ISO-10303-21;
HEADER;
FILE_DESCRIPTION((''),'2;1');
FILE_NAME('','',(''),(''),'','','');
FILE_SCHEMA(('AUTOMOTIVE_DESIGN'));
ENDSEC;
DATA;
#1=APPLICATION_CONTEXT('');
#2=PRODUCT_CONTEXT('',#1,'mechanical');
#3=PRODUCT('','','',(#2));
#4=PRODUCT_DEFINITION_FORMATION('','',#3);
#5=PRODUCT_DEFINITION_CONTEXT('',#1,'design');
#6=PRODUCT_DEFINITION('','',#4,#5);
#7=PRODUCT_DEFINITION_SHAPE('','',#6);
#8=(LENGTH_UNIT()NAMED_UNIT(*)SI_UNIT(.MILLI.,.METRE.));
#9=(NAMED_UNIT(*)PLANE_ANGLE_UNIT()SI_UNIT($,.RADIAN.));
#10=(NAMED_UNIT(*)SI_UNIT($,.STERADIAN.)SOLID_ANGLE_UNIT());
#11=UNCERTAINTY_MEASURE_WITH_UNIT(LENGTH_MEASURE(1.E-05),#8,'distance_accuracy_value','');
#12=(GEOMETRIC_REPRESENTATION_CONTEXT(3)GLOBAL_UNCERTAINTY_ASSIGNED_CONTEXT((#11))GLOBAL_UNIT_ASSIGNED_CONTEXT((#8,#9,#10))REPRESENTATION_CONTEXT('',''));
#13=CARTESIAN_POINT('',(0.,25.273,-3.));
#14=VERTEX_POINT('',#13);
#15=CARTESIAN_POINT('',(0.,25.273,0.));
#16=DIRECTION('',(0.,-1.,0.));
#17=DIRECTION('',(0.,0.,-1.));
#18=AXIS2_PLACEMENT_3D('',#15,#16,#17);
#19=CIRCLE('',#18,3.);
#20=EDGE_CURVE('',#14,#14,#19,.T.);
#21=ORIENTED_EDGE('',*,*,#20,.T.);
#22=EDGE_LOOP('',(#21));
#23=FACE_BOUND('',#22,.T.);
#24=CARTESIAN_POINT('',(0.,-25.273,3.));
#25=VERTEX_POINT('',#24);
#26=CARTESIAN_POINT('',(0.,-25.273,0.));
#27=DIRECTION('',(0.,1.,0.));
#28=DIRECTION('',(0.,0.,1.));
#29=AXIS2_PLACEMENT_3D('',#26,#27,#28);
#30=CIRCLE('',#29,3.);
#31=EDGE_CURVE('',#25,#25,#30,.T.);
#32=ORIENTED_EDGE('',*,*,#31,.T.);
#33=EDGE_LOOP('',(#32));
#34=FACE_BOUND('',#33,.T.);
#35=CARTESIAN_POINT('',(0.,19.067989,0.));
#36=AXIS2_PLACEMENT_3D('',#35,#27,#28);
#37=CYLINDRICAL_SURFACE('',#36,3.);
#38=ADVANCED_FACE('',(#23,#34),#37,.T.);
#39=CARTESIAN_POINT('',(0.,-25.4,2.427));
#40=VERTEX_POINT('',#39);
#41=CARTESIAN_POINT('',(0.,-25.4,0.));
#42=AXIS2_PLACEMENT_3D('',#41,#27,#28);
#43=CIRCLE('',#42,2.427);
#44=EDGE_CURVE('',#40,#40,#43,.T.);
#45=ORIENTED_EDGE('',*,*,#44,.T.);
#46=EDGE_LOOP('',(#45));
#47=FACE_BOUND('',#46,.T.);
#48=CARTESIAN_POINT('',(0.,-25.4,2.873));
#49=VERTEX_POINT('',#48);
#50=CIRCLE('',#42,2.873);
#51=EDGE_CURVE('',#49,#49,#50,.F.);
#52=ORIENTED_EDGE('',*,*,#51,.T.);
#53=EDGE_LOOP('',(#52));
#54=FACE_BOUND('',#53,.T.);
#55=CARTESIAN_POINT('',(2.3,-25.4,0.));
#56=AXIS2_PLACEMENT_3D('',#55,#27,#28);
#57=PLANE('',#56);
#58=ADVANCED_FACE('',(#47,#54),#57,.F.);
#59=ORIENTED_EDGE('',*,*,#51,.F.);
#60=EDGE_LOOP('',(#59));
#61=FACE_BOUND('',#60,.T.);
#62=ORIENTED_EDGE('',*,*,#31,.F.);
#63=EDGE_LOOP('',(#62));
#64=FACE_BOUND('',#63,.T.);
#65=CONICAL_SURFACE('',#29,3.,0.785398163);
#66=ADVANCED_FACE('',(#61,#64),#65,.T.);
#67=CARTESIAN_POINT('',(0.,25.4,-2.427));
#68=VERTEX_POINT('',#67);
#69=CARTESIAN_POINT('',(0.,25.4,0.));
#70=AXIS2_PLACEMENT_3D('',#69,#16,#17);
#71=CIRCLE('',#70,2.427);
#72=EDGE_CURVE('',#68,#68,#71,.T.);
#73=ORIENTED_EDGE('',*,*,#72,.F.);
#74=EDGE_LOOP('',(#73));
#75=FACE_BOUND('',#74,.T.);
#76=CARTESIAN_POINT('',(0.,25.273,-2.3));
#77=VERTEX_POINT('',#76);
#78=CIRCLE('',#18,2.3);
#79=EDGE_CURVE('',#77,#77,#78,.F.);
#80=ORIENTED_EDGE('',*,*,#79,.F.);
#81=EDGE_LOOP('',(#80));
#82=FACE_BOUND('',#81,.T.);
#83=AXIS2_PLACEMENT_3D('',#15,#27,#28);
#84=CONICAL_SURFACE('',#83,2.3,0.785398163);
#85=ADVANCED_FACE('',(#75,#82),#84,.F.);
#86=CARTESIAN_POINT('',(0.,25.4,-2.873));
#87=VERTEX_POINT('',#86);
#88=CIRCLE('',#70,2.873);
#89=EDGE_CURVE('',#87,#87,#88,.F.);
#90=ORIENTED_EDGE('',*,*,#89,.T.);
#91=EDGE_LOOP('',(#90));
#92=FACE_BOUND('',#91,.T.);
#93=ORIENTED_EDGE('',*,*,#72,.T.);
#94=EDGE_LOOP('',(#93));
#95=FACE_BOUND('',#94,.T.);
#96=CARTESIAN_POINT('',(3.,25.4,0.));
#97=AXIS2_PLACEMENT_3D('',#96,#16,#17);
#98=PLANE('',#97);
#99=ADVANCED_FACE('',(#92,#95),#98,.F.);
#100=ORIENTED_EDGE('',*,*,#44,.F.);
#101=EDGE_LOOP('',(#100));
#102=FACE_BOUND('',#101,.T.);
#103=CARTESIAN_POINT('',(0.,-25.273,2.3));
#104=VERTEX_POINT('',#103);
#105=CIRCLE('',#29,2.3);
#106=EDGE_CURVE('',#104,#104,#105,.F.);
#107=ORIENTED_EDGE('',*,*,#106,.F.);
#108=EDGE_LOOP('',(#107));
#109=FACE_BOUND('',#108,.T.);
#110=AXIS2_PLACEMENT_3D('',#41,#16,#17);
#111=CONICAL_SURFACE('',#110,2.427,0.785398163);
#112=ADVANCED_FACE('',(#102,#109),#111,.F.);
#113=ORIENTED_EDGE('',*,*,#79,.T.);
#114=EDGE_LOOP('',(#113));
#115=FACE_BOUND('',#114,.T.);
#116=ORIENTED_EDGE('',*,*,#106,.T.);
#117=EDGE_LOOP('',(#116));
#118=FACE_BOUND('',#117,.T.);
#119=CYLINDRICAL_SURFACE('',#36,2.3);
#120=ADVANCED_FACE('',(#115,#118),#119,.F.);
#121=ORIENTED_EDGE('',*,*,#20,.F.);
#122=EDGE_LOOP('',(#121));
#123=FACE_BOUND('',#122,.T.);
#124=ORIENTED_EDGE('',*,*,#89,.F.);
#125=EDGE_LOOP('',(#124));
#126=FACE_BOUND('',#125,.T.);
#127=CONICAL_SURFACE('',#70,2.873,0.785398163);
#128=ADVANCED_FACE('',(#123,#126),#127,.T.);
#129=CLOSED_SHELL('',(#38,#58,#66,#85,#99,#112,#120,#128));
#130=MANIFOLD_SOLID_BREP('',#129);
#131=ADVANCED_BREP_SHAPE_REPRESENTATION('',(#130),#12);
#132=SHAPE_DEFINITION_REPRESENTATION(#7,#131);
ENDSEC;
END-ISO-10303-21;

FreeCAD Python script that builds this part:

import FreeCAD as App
import Part
import Sketcher
from FreeCAD import Vector
Q = App.Units.Quantity


def edges_at(feature, points):
    """Names of the edges that pass closest to the given points."""
    edges = feature.Shape.Edges
    near = lambda p: min(range(len(edges)), key=lambda i: edges[i].distToShape(Part.Vertex(*p))[0])
    return sorted({f"Edge{near(p) + 1}" for p in points})

doc = App.newDocument("Part")
body = doc.addObject("PartDesign::Body", "Body")

# Sketch on XY plane
sketch1 = body.newObject("Sketcher::SketchObject", "Sketch")
sketch1.AttachmentSupport = (doc.getObject("XY_Plane"), [""])
sketch1.MapMode = "FlatFace"
sketch1.addGeometry(Part.LineSegment(Vector(2.3, 25.4, 0), Vector(2.3, -25.4, 0)), False)
sketch1.addGeometry(Part.LineSegment(Vector(2.3, -25.4, 0), Vector(3, -25.4, 0)), False)
sketch1.addGeometry(Part.LineSegment(Vector(3, -25.4, 0), Vector(3, 25.4, 0)), False)
sketch1.addGeometry(Part.LineSegment(Vector(3, 25.4, 0), Vector(2.3, 25.4, 0)), False)
sketch1.addConstraint(Sketcher.Constraint("Coincident", 0, 2, 1, 1))
sketch1.addConstraint(Sketcher.Constraint("Coincident", 1, 2, 2, 1))
sketch1.addConstraint(Sketcher.Constraint("Coincident", 2, 2, 3, 1))
sketch1.addConstraint(Sketcher.Constraint("Coincident", 3, 2, 0, 1))
sketch1.addConstraint(Sketcher.Constraint("Vertical", 0))
sketch1.addConstraint(Sketcher.Constraint("Horizontal", 1))
sketch1.addConstraint(Sketcher.Constraint("Vertical", 2))
sketch1.addConstraint(Sketcher.Constraint("Horizontal", 3))
sketch1.addConstraint(Sketcher.Constraint("DistanceY", 0, 2, 0, 1, Q("2 in")))
sketch1.addConstraint(Sketcher.Constraint("DistanceY", 0, 2, -1, 1, Q("1 in")))
sketch1.addConstraint(Sketcher.Constraint("DistanceX", 1, 1, 1, 2, Q("0.7 mm")))
sketch1.addConstraint(Sketcher.Constraint("DistanceX", -1, 1, 0, 2, Q("2.3 mm")))
revolution = body.newObject("PartDesign::Revolution", "Revolution")
revolution.Profile = sketch1
revolution.ReferenceAxis = (sketch1, ["V_Axis"])
revolution.Angle = 360
doc.recompute()

chamfer = body.newObject("PartDesign::Chamfer", "Chamfer")
chamfer.Base = (revolution, edges_at(revolution, [
    (-3, 25.4, 0),
    (-3, -25.4, 0),
    (-2.3, -25.4, 0),
    (-2.3, 25.4, 0),
]))
chamfer.Size = Q("0.005 in")

doc.recompute()
